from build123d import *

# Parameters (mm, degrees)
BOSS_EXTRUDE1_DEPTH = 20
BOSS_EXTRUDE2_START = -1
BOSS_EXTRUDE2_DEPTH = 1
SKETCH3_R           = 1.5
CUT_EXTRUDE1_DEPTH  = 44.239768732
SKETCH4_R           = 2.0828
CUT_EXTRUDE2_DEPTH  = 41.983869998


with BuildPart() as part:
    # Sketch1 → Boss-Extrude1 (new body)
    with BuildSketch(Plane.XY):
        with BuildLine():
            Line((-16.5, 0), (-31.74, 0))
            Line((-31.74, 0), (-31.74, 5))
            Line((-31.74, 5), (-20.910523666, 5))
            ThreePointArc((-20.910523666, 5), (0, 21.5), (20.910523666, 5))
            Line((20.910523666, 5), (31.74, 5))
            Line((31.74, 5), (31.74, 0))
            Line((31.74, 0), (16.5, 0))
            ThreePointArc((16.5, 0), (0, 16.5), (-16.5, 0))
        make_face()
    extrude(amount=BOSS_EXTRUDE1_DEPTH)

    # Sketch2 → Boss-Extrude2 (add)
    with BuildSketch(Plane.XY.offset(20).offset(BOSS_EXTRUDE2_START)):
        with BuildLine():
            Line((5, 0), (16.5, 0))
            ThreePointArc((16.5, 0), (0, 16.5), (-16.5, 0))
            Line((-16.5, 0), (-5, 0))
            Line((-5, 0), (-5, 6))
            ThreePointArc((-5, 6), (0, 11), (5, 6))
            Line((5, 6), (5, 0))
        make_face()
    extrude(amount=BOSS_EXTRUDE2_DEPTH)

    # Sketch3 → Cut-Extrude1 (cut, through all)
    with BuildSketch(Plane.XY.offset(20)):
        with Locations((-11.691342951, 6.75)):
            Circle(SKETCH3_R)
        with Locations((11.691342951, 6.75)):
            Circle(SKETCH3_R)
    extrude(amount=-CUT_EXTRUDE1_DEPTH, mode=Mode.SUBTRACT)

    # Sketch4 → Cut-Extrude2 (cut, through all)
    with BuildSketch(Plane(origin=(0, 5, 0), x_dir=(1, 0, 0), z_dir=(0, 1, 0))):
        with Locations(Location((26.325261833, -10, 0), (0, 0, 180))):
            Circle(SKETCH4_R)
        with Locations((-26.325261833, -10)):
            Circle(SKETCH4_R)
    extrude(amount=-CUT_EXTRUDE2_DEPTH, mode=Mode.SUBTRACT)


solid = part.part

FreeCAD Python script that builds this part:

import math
import FreeCAD as App
import Part
import Sketcher
from FreeCAD import Vector

doc = App.newDocument("Part")
body = doc.addObject("PartDesign::Body", "Body")

sketch1 = body.newObject("Sketcher::SketchObject", "Sketch")
sketch1.AttachmentSupport = (doc.getObject("XY_Plane"), [""])
sketch1.MapMode = "FlatFace"
sketch1.addGeometry(Part.LineSegment(Vector(-32, 0, 0), Vector(-16, 0, 0)), False)
sketch1.addGeometry(Part.ArcOfCircle(Part.Circle(Vector(0, 0, 0), Vector(0, 0, 1), 16), math.radians(0), math.radians(180)), False)
sketch1.addGeometry(Part.LineSegment(Vector(16, 0, 0), Vector(32, 0, 0)), False)
sketch1.addGeometry(Part.LineSegment(Vector(32, 0, 0), Vector(32, 5, 0)), False)
sketch1.addGeometry(Part.LineSegment(Vector(32, 5, 0), Vector(21, 5, 0)), False)
sketch1.addGeometry(Part.ArcOfCircle(Part.Circle(Vector(0, 0, 0), Vector(0, 0, 1), 22), math.radians(13), math.radians(167)), False)
sketch1.addGeometry(Part.LineSegment(Vector(-21, 5, 0), Vector(-32, 5, 0)), False)
sketch1.addGeometry(Part.LineSegment(Vector(-32, 5, 0), Vector(-32, 0, 0)), False)
sketch1.addConstraint(Sketcher.Constraint("Coincident", 0, 2, 1, 2))
sketch1.addConstraint(Sketcher.Constraint("Coincident", 1, 1, 2, 1))
sketch1.addConstraint(Sketcher.Constraint("Coincident", 2, 2, 3, 1))
sketch1.addConstraint(Sketcher.Constraint("Coincident", 3, 2, 4, 1))
sketch1.addConstraint(Sketcher.Constraint("Coincident", 4, 2, 5, 1))
sketch1.addConstraint(Sketcher.Constraint("Coincident", 5, 2, 6, 1))
sketch1.addConstraint(Sketcher.Constraint("Coincident", 6, 2, 7, 1))
sketch1.addConstraint(Sketcher.Constraint("Coincident", 7, 2, 0, 1))
sketch1.addConstraint(Sketcher.Constraint("Horizontal", 0))
sketch1.addConstraint(Sketcher.Constraint("Horizontal", 2))
sketch1.addConstraint(Sketcher.Constraint("Vertical", 3))
sketch1.addConstraint(Sketcher.Constraint("Horizontal", 4))
sketch1.addConstraint(Sketcher.Constraint("Horizontal", 6))
sketch1.addConstraint(Sketcher.Constraint("Vertical", 7))
sketch1.addConstraint(Sketcher.Constraint("Coincident", 1, 3, -1, 1))
sketch1.addConstraint(Sketcher.Constraint("Coincident", 5, 3, -1, 1))
sketch1.addConstraint(Sketcher.Constraint("Symmetric", 2, 2, 7, 2, -1, 1))
sketch1.addConstraint(Sketcher.Constraint("PointOnObject", 0, 2, -1))
sketch1.addConstraint(Sketcher.Constraint("Horizontal", 4, 2, 5, 2))
sketch1.addConstraint(Sketcher.Constraint("Radius", 1, 16.5))
sketch1.addConstraint(Sketcher.Constraint("Radius", 5, 21.5))
sketch1.addConstraint(Sketcher.Constraint("DistanceY", 3, 1, 3, 2, 5.0))
sketch1.addConstraint(Sketcher.Constraint("DistanceX", 0, 1, 0, 2, 15.24))
pad1 = body.newObject("PartDesign::Pad", "Pad")
pad1.Profile = sketch1
pad1.Length = 20

sketch2 = body.newObject("Sketcher::SketchObject", "Sketch001")
sketch2.AttachmentSupport = (doc.getObject("XY_Plane"), [""])
sketch2.MapMode = "FlatFace"
sketch2.AttachmentOffset = App.Placement(Vector(0, 0, 19), App.Rotation())
sketch2.addGeometry(Part.LineSegment(Vector(5, 0, 0), Vector(16, 0, 0)), False)
sketch2.addGeometry(Part.ArcOfCircle(Part.Circle(Vector(0, 0, 0), Vector(0, 0, 1), 16), math.radians(0), math.radians(180)), False)
sketch2.addGeometry(Part.LineSegment(Vector(-16, 0, 0), Vector(-5, 0, 0)), False)
sketch2.addGeometry(Part.LineSegment(Vector(-5, 0, 0), Vector(-5, 6, 0)), False)
sketch2.addGeometry(Part.ArcOfCircle(Part.Circle(Vector(0, 6, 0), Vector(0, 0, 1), 5), math.radians(0), math.radians(180)), False)
sketch2.addGeometry(Part.LineSegment(Vector(5, 6, 0), Vector(5, 0, 0)), False)
sketch2.addConstraint(Sketcher.Constraint("Coincident", 0, 2, 1, 1))
sketch2.addConstraint(Sketcher.Constraint("Coincident", 1, 2, 2, 1))
sketch2.addConstraint(Sketcher.Constraint("Coincident", 2, 2, 3, 1))
sketch2.addConstraint(Sketcher.Constraint("Tangent", 3, 2, 4, 2))
sketch2.addConstraint(Sketcher.Constraint("Tangent", 4, 1, 5, 1))
sketch2.addConstraint(Sketcher.Constraint("Coincident", 5, 2, 0, 1))
sketch2.addConstraint(Sketcher.Constraint("Horizontal", 0))
sketch2.addConstraint(Sketcher.Constraint("Horizontal", 2))
sketch2.addConstraint(Sketcher.Constraint("Vertical", 3))
sketch2.addConstraint(Sketcher.Constraint("Vertical", 5))
sketch2.addConstraint(Sketcher.Constraint("Coincident", 1, 3, -1, 1))
sketch2.addConstraint(Sketcher.Constraint("Symmetric", 2, 2, 5, 2, -1, 1))
sketch2.addConstraint(Sketcher.Constraint("PointOnObject", 0, 2, -1))
sketch2.addConstraint(Sketcher.Constraint("Radius", 4, 5.0))
sketch2.addConstraint(Sketcher.Constraint("Radius", 1, 16.5))
sketch2.addConstraint(Sketcher.Constraint("DistanceY", 3, 1, 3, 2, 6.0))
pad2 = body.newObject("PartDesign::Pad", "Pad001")
pad2.Profile = sketch2
pad2.Length = 1

sketch3 = body.newObject("Sketcher::SketchObject", "Sketch002")
sketch3.AttachmentSupport = (doc.getObject("XY_Plane"), [""])
sketch3.MapMode = "FlatFace"
sketch3.AttachmentOffset = App.Placement(Vector(0, 0, 20), App.Rotation())
sketch3.addGeometry(Part.Circle(Vector(-11.7, 6.8, 0), Vector(0, 0, 1), 1.5), False)
sketch3.addGeometry(Part.Circle(Vector(11.7, 6.8, 0), Vector(0, 0, 1), 1.5), False)
sketch3.addConstraint(Sketcher.Constraint("Equal", 0, 1))
sketch3.addConstraint(Sketcher.Constraint("Symmetric", 0, 3, 1, 3, -2))
sketch3.addConstraint(Sketcher.Constraint("Diameter", 0, 3.0))
sketch3.addConstraint(Sketcher.Constraint("DistanceY", -1, 1, 0, 3, 6.75))
sketch3.addConstraint(Sketcher.Constraint("DistanceX", 0, 3, -1, 1, 11.691343))
pocket1 = body.newObject("PartDesign::Pocket", "Pocket")
pocket1.Profile = sketch3
pocket1.Type = "ThroughAll"

sketch4 = body.newObject("Sketcher::SketchObject", "Sketch003")
sketch4.AttachmentSupport = (doc.getObject("XZ_Plane"), [""])
sketch4.MapMode = "FlatFace"
sketch4.AttachmentOffset = App.Placement(Vector(0, 0, -5), App.Rotation())
sketch4.addGeometry(Part.Circle(Vector(26.3, 10, 0), Vector(0, 0, 1), 2.1), False)
sketch4.addGeometry(Part.Circle(Vector(-26.3, 10, 0), Vector(0, 0, 1), 2.1), False)
sketch4.addConstraint(Sketcher.Constraint("Equal", 0, 1))
sketch4.addConstraint(Sketcher.Constraint("Symmetric", 0, 3, 1, 3, -2))
sketch4.addConstraint(Sketcher.Constraint("DistanceY", -1, 1, 0, 3, 10.0))
sketch4.addConstraint(Sketcher.Constraint("Diameter", 0, 4.1656))
sketch4.addConstraint(Sketcher.Constraint("DistanceX", -1, 1, 0, 3, 26.325262))
pocket2 = body.newObject("PartDesign::Pocket", "Pocket001")
pocket2.Profile = sketch4
pocket2.Type = "ThroughAll"
pocket2.Reversed = True

doc.recompute()
